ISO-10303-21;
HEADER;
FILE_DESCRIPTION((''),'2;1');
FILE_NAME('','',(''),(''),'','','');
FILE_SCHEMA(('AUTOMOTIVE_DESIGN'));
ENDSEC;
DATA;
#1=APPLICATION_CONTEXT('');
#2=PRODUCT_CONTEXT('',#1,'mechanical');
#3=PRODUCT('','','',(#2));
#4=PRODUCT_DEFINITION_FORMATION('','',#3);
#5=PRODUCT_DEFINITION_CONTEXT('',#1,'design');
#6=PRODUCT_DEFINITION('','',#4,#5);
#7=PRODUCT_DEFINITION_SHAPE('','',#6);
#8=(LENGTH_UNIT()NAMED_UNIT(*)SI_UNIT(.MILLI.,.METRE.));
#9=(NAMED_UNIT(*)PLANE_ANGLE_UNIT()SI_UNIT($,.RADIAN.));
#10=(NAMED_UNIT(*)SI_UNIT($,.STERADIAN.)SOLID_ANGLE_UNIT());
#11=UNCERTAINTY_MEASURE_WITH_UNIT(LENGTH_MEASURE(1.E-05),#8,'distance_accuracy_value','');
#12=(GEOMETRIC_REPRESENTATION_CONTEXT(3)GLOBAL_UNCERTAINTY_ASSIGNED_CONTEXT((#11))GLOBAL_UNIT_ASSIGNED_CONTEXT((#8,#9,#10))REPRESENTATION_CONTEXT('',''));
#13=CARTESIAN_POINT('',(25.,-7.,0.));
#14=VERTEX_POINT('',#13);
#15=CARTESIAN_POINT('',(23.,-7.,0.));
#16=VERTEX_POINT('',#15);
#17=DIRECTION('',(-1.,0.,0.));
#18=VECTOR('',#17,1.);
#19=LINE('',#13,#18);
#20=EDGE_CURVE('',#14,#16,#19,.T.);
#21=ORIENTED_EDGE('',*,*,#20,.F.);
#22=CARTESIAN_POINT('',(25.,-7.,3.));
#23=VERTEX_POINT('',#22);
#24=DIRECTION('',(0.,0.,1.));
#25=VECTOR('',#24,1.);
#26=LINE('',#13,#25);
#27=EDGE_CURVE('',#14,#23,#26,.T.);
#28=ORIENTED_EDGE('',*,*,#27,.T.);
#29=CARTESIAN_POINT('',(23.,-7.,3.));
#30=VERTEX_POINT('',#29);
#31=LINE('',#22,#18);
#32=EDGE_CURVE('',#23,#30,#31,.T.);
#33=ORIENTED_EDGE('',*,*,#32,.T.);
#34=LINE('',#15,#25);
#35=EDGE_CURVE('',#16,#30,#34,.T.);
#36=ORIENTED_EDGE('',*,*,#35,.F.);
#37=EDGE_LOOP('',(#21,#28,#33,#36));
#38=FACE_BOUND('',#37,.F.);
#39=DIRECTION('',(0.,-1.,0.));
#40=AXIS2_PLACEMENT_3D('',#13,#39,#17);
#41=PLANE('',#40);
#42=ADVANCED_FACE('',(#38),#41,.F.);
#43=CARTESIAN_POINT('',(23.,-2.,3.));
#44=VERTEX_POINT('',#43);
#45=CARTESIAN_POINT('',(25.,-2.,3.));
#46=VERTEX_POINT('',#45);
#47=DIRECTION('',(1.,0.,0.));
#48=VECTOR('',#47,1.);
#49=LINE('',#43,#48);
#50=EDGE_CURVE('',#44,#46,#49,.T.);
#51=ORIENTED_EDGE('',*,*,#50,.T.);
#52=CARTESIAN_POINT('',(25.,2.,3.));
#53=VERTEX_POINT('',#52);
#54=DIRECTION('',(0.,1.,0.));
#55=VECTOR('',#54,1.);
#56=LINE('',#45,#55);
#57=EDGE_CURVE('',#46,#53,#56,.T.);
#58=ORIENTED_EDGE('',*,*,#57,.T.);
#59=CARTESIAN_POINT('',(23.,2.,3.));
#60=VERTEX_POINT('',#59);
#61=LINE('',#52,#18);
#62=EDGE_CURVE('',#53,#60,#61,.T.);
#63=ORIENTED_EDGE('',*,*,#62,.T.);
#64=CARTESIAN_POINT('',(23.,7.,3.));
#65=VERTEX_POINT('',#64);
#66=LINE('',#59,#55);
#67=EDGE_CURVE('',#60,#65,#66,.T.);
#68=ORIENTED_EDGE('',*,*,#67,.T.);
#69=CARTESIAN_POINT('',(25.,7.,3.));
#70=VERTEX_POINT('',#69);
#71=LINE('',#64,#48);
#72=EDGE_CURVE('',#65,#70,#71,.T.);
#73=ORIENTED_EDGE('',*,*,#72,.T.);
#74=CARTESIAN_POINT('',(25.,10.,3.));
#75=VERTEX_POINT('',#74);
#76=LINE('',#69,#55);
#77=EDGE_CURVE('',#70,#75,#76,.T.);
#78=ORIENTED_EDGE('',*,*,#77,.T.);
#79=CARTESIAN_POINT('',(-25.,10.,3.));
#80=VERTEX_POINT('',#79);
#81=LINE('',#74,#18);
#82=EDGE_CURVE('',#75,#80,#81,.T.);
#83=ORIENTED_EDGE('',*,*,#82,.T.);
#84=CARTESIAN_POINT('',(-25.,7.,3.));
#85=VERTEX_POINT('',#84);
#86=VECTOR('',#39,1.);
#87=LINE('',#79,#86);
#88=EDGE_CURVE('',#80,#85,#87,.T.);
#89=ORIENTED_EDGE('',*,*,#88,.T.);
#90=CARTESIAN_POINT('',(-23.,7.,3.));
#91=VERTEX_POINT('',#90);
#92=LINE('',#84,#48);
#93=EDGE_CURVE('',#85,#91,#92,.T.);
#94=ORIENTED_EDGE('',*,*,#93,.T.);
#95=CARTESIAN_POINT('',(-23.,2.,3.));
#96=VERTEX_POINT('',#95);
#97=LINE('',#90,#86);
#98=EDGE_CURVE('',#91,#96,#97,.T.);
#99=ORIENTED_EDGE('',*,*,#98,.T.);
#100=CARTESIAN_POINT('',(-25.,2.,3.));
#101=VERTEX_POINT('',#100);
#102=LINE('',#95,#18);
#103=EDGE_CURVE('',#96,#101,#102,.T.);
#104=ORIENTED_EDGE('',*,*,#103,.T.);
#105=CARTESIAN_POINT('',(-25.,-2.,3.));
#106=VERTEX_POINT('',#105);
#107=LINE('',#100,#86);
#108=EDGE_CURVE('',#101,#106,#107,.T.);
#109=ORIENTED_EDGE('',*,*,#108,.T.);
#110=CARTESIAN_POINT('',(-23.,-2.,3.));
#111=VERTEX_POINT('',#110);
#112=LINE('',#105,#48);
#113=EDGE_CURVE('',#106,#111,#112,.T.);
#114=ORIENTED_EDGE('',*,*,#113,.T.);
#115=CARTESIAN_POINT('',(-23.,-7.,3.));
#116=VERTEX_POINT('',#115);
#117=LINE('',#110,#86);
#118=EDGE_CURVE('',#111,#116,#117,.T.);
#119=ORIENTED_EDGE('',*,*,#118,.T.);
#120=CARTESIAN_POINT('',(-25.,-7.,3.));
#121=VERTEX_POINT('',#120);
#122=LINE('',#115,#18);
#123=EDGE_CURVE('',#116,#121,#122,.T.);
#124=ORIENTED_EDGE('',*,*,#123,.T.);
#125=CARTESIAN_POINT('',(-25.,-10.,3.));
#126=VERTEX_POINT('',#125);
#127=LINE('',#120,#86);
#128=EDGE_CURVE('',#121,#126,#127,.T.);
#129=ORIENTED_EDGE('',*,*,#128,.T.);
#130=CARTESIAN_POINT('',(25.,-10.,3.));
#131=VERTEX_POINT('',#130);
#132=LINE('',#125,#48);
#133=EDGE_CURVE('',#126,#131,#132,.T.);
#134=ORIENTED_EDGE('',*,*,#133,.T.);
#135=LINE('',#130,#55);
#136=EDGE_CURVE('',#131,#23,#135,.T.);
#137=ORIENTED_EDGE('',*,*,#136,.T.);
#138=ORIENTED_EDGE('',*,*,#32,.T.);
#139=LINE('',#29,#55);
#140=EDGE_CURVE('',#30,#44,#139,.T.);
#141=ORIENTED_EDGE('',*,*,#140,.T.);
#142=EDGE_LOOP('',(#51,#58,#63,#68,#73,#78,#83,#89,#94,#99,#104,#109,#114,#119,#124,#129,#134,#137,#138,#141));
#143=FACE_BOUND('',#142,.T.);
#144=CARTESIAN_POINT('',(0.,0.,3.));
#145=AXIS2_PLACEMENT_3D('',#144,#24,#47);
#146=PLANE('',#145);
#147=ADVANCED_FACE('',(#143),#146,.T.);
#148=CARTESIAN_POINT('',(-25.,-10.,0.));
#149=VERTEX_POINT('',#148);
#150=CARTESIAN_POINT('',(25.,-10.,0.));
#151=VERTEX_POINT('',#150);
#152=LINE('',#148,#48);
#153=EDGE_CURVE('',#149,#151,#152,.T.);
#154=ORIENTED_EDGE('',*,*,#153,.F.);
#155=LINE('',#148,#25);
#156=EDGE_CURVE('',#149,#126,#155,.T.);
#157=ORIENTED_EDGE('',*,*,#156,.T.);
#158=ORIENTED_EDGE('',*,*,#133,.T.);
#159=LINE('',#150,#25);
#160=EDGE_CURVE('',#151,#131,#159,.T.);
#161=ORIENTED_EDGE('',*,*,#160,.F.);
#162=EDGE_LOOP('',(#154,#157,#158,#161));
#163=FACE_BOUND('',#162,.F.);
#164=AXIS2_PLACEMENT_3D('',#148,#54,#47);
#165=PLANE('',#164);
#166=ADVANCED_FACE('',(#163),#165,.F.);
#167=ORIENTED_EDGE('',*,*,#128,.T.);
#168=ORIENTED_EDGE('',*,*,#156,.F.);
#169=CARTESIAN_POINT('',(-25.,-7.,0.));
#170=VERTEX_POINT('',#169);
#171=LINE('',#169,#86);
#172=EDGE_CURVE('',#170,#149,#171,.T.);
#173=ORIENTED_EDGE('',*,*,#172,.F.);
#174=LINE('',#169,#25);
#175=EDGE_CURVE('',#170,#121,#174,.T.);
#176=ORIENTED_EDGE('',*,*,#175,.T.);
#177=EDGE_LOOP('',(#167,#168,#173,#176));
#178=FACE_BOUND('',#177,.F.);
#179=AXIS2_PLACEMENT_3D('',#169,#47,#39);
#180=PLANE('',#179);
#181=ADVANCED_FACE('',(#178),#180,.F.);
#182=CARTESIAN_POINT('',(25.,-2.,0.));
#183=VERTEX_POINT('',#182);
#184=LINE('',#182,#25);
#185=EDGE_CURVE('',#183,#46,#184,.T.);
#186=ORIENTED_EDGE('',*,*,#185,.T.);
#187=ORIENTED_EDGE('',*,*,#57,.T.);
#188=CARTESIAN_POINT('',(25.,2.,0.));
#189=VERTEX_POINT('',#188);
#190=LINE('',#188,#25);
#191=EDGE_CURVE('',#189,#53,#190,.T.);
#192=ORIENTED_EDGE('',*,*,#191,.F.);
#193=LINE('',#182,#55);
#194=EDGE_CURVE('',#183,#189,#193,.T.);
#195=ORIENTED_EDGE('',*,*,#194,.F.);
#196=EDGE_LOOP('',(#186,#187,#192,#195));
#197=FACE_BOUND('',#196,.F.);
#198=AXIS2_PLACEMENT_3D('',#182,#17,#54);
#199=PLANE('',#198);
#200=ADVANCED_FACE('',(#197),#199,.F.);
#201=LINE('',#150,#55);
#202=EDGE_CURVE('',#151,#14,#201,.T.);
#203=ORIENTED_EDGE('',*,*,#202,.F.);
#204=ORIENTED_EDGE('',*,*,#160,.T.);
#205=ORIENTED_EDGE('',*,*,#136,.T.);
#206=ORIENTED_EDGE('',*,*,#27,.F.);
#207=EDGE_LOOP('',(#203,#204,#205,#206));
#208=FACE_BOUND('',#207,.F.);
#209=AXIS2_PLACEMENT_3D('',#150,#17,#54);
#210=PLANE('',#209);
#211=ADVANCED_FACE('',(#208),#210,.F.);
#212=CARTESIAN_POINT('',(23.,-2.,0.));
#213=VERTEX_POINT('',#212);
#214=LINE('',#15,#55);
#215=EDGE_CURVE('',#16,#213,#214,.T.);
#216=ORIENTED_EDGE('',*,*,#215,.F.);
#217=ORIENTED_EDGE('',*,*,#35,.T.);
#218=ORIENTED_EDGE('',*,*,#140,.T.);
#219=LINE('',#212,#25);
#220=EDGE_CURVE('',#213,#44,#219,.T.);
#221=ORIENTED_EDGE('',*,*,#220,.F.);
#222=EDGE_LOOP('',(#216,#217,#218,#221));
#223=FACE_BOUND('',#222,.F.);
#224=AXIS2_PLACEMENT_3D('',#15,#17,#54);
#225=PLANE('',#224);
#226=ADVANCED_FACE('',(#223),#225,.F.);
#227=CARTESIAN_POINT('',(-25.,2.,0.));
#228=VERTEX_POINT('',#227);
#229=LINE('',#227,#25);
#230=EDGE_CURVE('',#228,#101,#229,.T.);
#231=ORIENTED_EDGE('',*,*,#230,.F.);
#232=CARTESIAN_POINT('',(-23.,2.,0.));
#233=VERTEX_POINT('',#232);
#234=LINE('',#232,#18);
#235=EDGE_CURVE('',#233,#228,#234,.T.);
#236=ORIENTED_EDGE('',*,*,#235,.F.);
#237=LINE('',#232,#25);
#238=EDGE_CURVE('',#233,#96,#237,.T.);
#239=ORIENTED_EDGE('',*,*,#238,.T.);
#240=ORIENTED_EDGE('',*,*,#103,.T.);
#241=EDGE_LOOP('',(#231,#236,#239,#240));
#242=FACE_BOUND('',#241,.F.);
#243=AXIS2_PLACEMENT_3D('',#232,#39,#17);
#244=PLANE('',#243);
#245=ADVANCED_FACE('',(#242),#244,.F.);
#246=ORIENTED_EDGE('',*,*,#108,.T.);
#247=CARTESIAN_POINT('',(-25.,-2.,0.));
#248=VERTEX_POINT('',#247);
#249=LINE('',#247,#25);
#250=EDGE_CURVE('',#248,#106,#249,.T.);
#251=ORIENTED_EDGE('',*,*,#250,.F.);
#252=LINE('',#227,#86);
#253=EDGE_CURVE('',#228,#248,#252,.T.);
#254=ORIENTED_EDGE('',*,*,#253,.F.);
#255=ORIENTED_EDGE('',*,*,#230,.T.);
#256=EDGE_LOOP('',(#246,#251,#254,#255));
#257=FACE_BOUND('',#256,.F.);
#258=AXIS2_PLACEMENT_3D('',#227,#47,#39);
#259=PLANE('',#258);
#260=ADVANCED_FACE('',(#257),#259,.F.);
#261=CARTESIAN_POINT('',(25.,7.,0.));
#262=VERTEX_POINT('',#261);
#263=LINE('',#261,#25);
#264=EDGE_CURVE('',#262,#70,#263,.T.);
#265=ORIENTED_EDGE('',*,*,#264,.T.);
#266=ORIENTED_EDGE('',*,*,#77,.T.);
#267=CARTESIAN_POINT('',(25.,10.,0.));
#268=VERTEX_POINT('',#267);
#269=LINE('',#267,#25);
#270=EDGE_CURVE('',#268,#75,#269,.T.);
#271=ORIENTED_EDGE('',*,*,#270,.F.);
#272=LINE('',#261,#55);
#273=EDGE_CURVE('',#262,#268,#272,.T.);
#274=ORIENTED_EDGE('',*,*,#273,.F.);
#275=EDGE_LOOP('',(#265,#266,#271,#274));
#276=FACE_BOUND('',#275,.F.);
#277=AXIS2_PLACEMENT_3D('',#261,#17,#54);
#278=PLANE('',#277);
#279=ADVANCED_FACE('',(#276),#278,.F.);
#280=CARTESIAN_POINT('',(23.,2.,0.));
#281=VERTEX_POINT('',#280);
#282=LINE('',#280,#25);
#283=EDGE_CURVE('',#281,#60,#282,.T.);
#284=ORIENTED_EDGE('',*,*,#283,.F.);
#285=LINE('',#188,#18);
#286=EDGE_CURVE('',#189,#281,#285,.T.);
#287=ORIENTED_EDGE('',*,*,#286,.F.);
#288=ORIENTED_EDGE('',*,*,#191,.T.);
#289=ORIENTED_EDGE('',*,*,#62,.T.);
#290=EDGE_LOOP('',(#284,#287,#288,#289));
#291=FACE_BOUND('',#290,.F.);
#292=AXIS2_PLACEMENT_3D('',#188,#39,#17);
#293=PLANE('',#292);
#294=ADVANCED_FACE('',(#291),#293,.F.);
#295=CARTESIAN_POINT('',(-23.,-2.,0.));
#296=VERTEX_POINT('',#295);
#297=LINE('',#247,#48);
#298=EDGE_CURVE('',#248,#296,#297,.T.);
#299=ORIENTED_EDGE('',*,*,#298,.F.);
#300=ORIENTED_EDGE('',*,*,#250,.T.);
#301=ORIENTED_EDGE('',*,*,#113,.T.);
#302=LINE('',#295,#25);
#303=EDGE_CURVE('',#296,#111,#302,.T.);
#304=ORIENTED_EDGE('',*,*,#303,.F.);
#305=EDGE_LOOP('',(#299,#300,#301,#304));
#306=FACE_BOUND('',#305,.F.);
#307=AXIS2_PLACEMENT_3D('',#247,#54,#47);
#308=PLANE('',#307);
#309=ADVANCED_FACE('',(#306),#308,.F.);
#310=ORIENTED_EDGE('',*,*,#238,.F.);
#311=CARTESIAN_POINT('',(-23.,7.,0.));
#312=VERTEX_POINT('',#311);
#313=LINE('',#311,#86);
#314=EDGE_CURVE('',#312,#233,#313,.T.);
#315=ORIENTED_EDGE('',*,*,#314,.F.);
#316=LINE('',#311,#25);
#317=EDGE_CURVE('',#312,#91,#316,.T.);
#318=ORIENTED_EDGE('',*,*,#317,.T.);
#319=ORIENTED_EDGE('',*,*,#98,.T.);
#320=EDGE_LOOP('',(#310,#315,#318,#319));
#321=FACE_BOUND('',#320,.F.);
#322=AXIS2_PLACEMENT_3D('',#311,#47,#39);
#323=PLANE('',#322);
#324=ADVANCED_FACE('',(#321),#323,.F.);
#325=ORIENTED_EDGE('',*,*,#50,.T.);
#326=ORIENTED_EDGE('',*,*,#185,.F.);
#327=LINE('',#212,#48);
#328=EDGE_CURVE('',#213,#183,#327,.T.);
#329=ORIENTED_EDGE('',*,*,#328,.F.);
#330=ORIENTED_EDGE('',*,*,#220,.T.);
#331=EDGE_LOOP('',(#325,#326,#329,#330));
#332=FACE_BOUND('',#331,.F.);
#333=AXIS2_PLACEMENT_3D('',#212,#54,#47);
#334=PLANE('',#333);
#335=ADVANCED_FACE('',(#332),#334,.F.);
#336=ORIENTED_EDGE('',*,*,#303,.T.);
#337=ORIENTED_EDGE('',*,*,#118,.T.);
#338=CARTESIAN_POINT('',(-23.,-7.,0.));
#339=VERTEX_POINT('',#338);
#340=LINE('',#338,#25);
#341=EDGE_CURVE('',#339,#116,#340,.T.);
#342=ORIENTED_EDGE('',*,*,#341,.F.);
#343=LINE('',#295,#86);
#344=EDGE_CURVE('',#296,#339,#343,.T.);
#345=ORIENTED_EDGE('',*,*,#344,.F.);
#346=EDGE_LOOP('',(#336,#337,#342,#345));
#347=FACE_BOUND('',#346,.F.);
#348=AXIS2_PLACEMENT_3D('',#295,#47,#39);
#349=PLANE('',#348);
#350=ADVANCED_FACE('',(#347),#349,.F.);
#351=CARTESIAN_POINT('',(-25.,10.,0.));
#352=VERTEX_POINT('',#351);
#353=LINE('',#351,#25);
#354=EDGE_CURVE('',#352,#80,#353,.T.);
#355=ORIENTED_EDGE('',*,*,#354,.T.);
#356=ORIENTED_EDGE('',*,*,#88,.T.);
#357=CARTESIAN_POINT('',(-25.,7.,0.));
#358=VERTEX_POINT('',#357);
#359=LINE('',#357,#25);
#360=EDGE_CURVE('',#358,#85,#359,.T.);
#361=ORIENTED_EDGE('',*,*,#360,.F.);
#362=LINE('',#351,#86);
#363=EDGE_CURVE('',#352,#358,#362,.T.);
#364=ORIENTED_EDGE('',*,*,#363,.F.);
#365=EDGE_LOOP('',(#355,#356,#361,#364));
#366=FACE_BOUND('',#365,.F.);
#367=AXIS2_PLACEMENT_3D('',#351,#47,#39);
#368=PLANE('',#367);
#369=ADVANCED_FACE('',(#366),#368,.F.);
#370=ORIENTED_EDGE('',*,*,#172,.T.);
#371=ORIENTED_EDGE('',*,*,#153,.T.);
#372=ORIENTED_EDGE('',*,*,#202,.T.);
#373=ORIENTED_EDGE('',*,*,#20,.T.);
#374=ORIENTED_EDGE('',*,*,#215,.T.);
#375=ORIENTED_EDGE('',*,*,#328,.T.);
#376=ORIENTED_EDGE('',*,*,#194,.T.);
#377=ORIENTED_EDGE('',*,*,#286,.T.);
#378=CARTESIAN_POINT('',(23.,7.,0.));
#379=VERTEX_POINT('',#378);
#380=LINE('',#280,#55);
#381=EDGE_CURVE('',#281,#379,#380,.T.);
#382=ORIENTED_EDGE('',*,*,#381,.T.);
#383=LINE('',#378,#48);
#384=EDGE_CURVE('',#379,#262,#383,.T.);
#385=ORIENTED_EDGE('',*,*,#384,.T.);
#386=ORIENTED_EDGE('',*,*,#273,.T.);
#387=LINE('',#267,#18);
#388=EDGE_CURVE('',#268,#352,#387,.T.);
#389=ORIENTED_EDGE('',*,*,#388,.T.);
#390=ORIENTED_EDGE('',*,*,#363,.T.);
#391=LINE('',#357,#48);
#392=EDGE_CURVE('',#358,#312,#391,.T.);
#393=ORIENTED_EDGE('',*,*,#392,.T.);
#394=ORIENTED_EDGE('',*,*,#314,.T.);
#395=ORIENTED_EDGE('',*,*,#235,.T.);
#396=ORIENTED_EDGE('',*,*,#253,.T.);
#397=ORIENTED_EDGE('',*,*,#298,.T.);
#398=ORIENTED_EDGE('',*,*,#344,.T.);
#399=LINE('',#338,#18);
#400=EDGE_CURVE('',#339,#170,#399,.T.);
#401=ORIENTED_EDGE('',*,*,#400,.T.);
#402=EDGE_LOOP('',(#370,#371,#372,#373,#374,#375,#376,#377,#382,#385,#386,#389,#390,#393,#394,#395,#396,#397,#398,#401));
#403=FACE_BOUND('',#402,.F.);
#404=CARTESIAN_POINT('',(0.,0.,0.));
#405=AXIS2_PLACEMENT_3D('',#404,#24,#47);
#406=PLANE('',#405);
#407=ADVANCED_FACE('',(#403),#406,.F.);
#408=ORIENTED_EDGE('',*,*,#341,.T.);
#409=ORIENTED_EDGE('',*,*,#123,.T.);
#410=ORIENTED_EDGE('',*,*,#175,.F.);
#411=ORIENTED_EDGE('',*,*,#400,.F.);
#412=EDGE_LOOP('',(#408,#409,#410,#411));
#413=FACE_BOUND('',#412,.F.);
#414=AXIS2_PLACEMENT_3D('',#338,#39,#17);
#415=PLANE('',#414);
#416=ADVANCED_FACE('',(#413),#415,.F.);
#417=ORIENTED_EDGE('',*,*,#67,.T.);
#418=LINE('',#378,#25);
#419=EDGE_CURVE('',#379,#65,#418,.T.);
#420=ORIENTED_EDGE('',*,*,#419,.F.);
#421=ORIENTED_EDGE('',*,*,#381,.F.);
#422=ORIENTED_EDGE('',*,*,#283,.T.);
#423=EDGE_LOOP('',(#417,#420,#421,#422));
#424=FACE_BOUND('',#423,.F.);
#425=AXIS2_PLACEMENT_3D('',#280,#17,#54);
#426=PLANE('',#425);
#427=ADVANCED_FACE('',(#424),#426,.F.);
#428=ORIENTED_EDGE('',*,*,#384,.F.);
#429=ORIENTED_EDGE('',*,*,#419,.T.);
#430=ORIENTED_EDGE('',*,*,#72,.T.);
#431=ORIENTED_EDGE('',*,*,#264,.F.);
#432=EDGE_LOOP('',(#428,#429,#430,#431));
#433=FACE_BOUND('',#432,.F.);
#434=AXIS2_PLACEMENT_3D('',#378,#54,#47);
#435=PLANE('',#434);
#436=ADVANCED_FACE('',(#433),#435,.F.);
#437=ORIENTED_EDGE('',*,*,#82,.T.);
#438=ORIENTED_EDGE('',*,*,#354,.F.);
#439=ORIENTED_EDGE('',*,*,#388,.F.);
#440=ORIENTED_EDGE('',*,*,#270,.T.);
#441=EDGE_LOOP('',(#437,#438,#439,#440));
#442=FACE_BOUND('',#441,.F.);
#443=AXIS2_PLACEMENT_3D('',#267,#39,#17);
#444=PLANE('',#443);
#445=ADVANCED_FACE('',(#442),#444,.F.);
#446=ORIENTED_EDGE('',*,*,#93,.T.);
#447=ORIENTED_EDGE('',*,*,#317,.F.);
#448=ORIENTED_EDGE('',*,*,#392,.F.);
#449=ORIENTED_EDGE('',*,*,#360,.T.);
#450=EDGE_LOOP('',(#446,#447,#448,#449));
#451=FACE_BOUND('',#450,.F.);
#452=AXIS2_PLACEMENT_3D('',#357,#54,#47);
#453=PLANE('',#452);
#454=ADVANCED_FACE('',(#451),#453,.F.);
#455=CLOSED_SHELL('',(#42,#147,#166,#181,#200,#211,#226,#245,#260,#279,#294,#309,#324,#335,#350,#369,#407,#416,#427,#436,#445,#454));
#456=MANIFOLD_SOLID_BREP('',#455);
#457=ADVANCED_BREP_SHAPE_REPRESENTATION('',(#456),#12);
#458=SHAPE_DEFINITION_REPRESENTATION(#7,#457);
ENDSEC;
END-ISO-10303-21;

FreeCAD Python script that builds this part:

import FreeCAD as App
import Part
import Sketcher

V = App.Vector

doc = App.newDocument("Part")
params = doc.addObject("Spreadsheet::Sheet", "Params")
for row, (alias, value) in enumerate([
    ("sketch1_width", "50 mm"),
    ("sketch1_width2", "2 mm"),
    ("sketch1_height", "3 mm"),
    ("sketch1_height2", "5 mm"),
    ("sketch1_height3", "4 mm"),
    ("pad1_length", "3 mm"),
], start=1):
    params.set(f"A{row}", alias)
    params.set(f"B{row}", "=" + value)
    params.setAlias(f"B{row}", alias)

body = doc.addObject("PartDesign::Body", "Body")

sketch1 = body.newObject("Sketcher::SketchObject", "Sketch")
sketch1.AttachmentSupport = (doc.getObject("XY_Plane"), [""])
sketch1.MapMode = "FlatFace"
sketch1.addGeometry(Part.LineSegment(V(25, 10, 0), V(-25, 10, 0)), False)
sketch1.addGeometry(Part.LineSegment(V(-25, 10, 0), V(-25, 7, 0)), False)
sketch1.addGeometry(Part.LineSegment(V(-25, 7, 0), V(-23, 7, 0)), False)
sketch1.addGeometry(Part.LineSegment(V(-23, 7, 0), V(-23, 2, 0)), False)
sketch1.addGeometry(Part.LineSegment(V(-23, 2, 0), V(-25, 2, 0)), False)
sketch1.addGeometry(Part.LineSegment(V(-25, 2, 0), V(-25, -2, 0)), False)
sketch1.addGeometry(Part.LineSegment(V(-25, -2, 0), V(-23, -2, 0)), False)
sketch1.addGeometry(Part.LineSegment(V(-23, -2, 0), V(-23, -7, 0)), False)
sketch1.addGeometry(Part.LineSegment(V(-23, -7, 0), V(-25, -7, 0)), False)
sketch1.addGeometry(Part.LineSegment(V(-25, -7, 0), V(-25, -10, 0)), False)
sketch1.addGeometry(Part.LineSegment(V(-25, -10, 0), V(25, -10, 0)), False)
sketch1.addGeometry(Part.LineSegment(V(25, -10, 0), V(25, -7, 0)), False)
sketch1.addGeometry(Part.LineSegment(V(25, -7, 0), V(23, -7, 0)), False)
sketch1.addGeometry(Part.LineSegment(V(23, -7, 0), V(23, -2, 0)), False)
sketch1.addGeometry(Part.LineSegment(V(23, -2, 0), V(25, -2, 0)), False)
sketch1.addGeometry(Part.LineSegment(V(25, -2, 0), V(25, 2, 0)), False)
sketch1.addGeometry(Part.LineSegment(V(25, 2, 0), V(23, 2, 0)), False)
sketch1.addGeometry(Part.LineSegment(V(23, 2, 0), V(23, 7, 0)), False)
sketch1.addGeometry(Part.LineSegment(V(23, 7, 0), V(25, 7, 0)), False)
sketch1.addGeometry(Part.LineSegment(V(25, 7, 0), V(25, 10, 0)), False)
sketch1.addConstraint(Sketcher.Constraint("Coincident", 0, 2, 1, 1))
sketch1.addConstraint(Sketcher.Constraint("Coincident", 1, 2, 2, 1))
sketch1.addConstraint(Sketcher.Constraint("Coincident", 2, 2, 3, 1))
sketch1.addConstraint(Sketcher.Constraint("Coincident", 3, 2, 4, 1))
sketch1.addConstraint(Sketcher.Constraint("Coincident", 4, 2, 5, 1))
sketch1.addConstraint(Sketcher.Constraint("Coincident", 5, 2, 6, 1))
sketch1.addConstraint(Sketcher.Constraint("Coincident", 6, 2, 7, 1))
sketch1.addConstraint(Sketcher.Constraint("Coincident", 7, 2, 8, 1))
sketch1.addConstraint(Sketcher.Constraint("Coincident", 8, 2, 9, 1))
sketch1.addConstraint(Sketcher.Constraint("Coincident", 9, 2, 10, 1))
sketch1.addConstraint(Sketcher.Constraint("Coincident", 10, 2, 11, 1))
sketch1.addConstraint(Sketcher.Constraint("Coincident", 11, 2, 12, 1))
sketch1.addConstraint(Sketcher.Constraint("Coincident", 12, 2, 13, 1))
sketch1.addConstraint(Sketcher.Constraint("Coincident", 13, 2, 14, 1))
sketch1.addConstraint(Sketcher.Constraint("Coincident", 14, 2, 15, 1))
sketch1.addConstraint(Sketcher.Constraint("Coincident", 15, 2, 16, 1))
sketch1.addConstraint(Sketcher.Constraint("Coincident", 16, 2, 17, 1))
sketch1.addConstraint(Sketcher.Constraint("Coincident", 17, 2, 18, 1))
sketch1.addConstraint(Sketcher.Constraint("Coincident", 18, 2, 19, 1))
sketch1.addConstraint(Sketcher.Constraint("Coincident", 19, 2, 0, 1))
sketch1.addConstraint(Sketcher.Constraint("Horizontal", 0))
sketch1.addConstraint(Sketcher.Constraint("Vertical", 1))
sketch1.addConstraint(Sketcher.Constraint("Horizontal", 2))
sketch1.addConstraint(Sketcher.Constraint("Vertical", 3))
sketch1.addConstraint(Sketcher.Constraint("Horizontal", 4))
sketch1.addConstraint(Sketcher.Constraint("Vertical", 5))
sketch1.addConstraint(Sketcher.Constraint("Horizontal", 6))
sketch1.addConstraint(Sketcher.Constraint("Vertical", 7))
sketch1.addConstraint(Sketcher.Constraint("Horizontal", 8))
sketch1.addConstraint(Sketcher.Constraint("Vertical", 9))
sketch1.addConstraint(Sketcher.Constraint("Horizontal", 10))
sketch1.addConstraint(Sketcher.Constraint("Vertical", 11))
sketch1.addConstraint(Sketcher.Constraint("Horizontal", 12))
sketch1.addConstraint(Sketcher.Constraint("Vertical", 13))
sketch1.addConstraint(Sketcher.Constraint("Horizontal", 14))
sketch1.addConstraint(Sketcher.Constraint("Vertical", 15))
sketch1.addConstraint(Sketcher.Constraint("Horizontal", 16))
sketch1.addConstraint(Sketcher.Constraint("Vertical", 17))
sketch1.addConstraint(Sketcher.Constraint("Horizontal", 18))
sketch1.addConstraint(Sketcher.Constraint("Vertical", 19))
sketch1.addConstraint(Sketcher.Constraint("Symmetric", 0, 2, 10, 2, -1, 1))
sketch1.addConstraint(Sketcher.Constraint("Symmetric", 2, 2, 12, 2, -1, 1))
sketch1.addConstraint(Sketcher.Constraint("Symmetric", 4, 2, 14, 2, -1, 1))
sketch1.addConstraint(Sketcher.Constraint("Symmetric", 6, 2, 16, 2, -1, 1))
sketch1.addConstraint(Sketcher.Constraint("Symmetric", 8, 2, 18, 2, -1, 1))
sketch1.addConstraint(Sketcher.Constraint("Symmetric", 8, 2, 11, 2, -2))
sketch1.addConstraint(Sketcher.Constraint("Symmetric", 6, 2, 13, 2, -2))
sketch1.addConstraint(Sketcher.Constraint("Vertical", 1, 2, 4, 2))
sketch1.addConstraint(Sketcher.Constraint("DistanceX", 0, 2, 0, 1, 50.0))
sketch1.addConstraint(Sketcher.Constraint("DistanceX", 2, 1, 2, 2, 2.0))
sketch1.addConstraint(Sketcher.Constraint("DistanceY", 1, 2, 1, 1, 3.0))
sketch1.addConstraint(Sketcher.Constraint("DistanceY", 3, 2, 3, 1, 5.0))
sketch1.addConstraint(Sketcher.Constraint("DistanceY", 5, 2, 5, 1, 4.0))
sketch1.setExpression("Constraints[48]", "Params.sketch1_width")
sketch1.setExpression("Constraints[49]", "Params.sketch1_width2")
sketch1.setExpression("Constraints[50]", "Params.sketch1_height")
sketch1.setExpression("Constraints[51]", "Params.sketch1_height2")
sketch1.setExpression("Constraints[52]", "Params.sketch1_height3")
pad1 = body.newObject("PartDesign::Pad", "Pad")
pad1.Profile = sketch1
pad1.setExpression("Length", "Params.pad1_length")

doc.recompute()
